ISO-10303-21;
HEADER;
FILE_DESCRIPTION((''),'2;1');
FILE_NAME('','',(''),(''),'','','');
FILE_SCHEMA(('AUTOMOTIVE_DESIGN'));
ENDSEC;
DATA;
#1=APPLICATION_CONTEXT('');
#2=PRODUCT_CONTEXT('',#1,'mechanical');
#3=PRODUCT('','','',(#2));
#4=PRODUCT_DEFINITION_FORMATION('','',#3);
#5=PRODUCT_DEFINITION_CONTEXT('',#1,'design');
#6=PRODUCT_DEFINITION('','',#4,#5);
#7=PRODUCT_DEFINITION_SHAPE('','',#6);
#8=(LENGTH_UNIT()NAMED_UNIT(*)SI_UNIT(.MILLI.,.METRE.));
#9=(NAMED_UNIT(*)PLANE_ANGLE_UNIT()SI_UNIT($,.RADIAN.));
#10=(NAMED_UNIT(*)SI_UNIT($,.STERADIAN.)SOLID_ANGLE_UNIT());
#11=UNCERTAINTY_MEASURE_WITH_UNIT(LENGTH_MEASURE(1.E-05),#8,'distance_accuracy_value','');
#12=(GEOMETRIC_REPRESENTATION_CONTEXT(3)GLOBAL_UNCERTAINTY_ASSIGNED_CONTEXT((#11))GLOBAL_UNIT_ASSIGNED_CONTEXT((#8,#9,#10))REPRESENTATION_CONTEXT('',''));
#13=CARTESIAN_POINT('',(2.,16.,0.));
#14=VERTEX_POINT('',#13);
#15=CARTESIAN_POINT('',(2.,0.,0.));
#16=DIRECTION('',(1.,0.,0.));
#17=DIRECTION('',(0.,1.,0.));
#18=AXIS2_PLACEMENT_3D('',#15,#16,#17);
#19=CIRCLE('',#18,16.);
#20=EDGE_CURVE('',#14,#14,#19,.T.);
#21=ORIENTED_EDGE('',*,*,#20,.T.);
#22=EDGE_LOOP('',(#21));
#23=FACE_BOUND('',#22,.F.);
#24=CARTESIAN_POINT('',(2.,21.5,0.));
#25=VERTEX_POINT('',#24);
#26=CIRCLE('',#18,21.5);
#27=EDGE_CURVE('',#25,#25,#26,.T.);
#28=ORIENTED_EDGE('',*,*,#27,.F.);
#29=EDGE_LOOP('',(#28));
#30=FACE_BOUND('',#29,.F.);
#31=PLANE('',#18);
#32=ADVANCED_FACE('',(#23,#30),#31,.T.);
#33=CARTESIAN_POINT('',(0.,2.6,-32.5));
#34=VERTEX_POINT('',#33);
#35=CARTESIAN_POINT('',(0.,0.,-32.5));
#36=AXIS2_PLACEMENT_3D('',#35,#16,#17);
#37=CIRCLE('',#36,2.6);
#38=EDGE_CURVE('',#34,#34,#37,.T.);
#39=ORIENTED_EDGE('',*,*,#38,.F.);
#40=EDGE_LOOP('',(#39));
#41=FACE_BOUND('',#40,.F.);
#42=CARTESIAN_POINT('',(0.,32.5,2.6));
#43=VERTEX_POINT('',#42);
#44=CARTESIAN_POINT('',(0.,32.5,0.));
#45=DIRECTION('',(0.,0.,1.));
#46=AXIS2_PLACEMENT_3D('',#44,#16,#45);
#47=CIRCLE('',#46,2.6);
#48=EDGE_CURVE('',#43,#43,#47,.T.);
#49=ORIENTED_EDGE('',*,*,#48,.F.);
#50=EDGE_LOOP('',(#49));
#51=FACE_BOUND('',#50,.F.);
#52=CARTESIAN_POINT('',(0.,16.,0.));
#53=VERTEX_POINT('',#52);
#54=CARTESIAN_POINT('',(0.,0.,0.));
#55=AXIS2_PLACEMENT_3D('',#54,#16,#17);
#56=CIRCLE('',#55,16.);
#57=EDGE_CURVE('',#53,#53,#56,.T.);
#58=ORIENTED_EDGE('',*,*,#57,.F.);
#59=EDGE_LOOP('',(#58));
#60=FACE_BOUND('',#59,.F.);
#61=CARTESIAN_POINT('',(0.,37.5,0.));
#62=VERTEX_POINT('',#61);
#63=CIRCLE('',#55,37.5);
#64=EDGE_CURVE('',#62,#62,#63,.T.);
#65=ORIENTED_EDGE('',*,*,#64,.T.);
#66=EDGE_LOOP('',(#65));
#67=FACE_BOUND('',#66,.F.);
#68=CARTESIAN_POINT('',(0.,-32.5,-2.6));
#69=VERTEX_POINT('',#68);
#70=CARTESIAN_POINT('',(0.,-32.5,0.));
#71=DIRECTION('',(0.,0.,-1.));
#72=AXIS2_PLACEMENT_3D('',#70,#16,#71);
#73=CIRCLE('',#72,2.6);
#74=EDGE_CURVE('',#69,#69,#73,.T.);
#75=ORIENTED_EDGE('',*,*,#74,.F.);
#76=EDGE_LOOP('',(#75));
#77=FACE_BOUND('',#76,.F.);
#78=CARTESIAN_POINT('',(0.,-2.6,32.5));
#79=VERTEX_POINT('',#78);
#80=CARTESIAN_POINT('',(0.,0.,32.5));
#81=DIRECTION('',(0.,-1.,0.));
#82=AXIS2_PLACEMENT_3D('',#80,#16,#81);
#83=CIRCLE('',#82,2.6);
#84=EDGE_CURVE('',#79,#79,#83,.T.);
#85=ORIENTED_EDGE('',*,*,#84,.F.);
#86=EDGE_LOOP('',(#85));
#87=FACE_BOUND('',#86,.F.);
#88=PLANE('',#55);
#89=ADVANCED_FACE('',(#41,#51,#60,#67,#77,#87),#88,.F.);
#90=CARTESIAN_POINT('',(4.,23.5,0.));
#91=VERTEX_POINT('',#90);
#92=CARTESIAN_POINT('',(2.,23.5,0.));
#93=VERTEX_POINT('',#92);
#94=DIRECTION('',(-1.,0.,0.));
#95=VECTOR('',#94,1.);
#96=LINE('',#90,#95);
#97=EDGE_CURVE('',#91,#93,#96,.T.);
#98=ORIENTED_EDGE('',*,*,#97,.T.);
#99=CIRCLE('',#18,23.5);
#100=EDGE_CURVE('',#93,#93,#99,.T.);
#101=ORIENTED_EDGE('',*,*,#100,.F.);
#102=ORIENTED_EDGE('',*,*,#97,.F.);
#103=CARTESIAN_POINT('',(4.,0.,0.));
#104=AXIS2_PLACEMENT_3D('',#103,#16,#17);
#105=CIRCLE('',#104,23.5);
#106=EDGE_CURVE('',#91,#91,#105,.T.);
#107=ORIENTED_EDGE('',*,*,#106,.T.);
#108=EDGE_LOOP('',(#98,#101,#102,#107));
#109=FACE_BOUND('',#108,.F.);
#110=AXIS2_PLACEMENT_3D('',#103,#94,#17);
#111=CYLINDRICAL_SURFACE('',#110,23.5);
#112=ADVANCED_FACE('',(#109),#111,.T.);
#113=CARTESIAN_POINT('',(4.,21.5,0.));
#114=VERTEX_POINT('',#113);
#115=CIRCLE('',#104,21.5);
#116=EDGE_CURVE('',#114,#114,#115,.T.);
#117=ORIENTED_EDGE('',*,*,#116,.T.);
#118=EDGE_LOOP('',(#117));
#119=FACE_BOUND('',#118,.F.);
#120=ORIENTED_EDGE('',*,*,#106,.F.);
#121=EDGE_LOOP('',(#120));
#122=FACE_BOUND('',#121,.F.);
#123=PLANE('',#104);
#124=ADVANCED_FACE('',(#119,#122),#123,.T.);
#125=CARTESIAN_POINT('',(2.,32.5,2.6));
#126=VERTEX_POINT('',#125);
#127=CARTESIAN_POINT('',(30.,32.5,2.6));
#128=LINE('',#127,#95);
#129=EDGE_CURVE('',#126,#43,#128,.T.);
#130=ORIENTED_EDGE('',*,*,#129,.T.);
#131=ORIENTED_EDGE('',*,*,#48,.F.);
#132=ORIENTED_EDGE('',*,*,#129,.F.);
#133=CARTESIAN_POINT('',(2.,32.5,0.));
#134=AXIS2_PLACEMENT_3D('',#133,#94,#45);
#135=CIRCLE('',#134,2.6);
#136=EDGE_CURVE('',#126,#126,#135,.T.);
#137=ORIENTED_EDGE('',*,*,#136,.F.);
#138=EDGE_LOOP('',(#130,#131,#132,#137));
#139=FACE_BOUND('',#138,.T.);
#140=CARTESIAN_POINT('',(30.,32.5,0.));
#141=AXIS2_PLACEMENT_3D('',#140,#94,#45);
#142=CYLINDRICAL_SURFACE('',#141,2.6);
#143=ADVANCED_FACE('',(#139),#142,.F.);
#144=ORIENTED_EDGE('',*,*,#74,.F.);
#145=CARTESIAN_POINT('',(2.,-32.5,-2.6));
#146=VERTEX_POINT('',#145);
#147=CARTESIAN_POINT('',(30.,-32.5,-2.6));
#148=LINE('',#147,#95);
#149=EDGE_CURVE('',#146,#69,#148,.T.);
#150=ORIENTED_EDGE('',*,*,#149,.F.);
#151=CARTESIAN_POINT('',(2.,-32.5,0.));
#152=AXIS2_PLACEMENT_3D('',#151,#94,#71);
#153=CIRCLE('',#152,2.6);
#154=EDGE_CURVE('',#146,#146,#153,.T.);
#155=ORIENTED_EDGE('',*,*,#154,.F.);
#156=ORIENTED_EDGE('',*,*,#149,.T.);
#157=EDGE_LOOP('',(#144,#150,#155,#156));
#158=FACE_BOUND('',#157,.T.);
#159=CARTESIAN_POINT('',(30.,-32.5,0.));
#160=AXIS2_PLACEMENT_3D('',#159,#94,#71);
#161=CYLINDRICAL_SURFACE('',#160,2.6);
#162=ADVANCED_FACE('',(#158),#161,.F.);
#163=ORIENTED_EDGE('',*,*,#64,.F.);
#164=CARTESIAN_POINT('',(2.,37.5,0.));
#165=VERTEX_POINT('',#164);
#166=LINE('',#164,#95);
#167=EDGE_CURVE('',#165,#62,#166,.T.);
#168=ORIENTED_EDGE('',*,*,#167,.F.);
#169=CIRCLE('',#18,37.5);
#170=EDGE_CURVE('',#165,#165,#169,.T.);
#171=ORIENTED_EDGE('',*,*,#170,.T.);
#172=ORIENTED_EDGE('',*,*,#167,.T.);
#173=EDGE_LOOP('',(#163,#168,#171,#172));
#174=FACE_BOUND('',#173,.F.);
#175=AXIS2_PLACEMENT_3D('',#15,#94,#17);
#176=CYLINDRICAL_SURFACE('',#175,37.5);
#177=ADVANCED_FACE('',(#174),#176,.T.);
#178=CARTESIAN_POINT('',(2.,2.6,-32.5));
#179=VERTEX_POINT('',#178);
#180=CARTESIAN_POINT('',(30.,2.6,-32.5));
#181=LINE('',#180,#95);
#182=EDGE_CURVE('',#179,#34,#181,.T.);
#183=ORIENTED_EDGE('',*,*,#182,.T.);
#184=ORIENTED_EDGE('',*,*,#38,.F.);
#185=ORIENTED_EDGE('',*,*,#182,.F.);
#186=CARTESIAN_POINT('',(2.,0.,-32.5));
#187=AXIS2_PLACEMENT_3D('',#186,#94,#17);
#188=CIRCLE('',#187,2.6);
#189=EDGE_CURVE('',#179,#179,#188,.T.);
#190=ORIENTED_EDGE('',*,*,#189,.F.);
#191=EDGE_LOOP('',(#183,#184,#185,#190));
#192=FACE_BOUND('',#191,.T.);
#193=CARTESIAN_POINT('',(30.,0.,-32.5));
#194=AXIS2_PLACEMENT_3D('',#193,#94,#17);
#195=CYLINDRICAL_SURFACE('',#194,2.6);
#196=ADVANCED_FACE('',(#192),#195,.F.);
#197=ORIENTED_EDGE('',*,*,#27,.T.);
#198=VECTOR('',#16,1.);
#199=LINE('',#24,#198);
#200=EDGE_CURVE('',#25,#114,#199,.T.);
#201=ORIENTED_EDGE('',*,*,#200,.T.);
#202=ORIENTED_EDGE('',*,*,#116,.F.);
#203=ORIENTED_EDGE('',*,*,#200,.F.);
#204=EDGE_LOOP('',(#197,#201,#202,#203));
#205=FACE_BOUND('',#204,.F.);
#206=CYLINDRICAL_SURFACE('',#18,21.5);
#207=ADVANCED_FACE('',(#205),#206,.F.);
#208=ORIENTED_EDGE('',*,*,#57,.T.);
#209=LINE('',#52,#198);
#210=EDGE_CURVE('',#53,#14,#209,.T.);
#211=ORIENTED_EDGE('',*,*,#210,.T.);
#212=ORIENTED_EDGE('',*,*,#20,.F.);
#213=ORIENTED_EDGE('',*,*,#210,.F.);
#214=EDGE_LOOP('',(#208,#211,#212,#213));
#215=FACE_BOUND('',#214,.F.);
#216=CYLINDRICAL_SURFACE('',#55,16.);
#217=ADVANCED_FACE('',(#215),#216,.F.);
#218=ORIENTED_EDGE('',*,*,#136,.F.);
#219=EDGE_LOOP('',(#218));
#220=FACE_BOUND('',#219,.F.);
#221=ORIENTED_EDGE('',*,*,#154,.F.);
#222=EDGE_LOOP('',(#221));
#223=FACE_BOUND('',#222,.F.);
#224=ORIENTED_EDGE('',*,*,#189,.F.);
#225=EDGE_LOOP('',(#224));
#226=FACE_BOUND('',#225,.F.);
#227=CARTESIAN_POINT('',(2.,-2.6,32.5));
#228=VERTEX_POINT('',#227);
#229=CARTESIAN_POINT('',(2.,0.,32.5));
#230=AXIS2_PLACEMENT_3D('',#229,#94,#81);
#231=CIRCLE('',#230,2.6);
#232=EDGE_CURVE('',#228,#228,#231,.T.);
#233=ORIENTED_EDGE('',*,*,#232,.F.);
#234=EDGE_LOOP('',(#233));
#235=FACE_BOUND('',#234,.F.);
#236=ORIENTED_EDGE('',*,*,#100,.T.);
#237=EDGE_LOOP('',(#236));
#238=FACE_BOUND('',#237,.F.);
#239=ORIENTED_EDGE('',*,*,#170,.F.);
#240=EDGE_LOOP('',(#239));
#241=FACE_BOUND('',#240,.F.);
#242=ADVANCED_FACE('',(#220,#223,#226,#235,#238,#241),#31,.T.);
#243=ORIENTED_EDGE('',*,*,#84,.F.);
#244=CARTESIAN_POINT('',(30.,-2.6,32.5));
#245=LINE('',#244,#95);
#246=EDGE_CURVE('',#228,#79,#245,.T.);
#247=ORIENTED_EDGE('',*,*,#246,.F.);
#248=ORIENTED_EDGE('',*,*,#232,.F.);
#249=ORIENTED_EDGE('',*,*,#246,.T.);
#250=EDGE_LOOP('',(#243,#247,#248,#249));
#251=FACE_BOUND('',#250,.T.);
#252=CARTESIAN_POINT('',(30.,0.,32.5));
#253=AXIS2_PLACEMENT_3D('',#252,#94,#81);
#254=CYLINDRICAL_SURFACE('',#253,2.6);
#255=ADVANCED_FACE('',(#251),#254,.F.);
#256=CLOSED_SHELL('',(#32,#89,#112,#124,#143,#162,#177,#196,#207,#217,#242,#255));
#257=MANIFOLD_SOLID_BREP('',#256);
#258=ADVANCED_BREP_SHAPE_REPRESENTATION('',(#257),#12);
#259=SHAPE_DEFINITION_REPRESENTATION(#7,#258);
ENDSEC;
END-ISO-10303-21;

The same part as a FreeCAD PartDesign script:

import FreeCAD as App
import Part
import Sketcher
Q = App.Units.Quantity

doc = App.newDocument("Part")
body = doc.addObject("PartDesign::Body", "Body")

# Sketch on XY plane
sketch1 = body.newObject("Sketcher::SketchObject", "Sketch")
sketch1.AttachmentSupport = (doc.getObject("XY_Plane"), [""])
sketch1.MapMode = "FlatFace"
sketch1.addGeometry([
    Part.LineSegment(App.Vector(0, 37.5, 0), App.Vector(0, 16, 0)),  # 0
    Part.LineSegment(App.Vector(0, 16, 0), App.Vector(2, 16, 0)),  # 1
    Part.LineSegment(App.Vector(2, 16, 0), App.Vector(2, 21.5, 0)),  # 2
    Part.LineSegment(App.Vector(2, 21.5, 0), App.Vector(4, 21.5, 0)),  # 3
    Part.LineSegment(App.Vector(4, 21.5, 0), App.Vector(4, 23.5, 0)),  # 4
    Part.LineSegment(App.Vector(4, 23.5, 0), App.Vector(2, 23.5, 0)),  # 5
    Part.LineSegment(App.Vector(2, 23.5, 0), App.Vector(2, 37.5, 0)),  # 6
    Part.LineSegment(App.Vector(2, 37.5, 0), App.Vector(0, 37.5, 0)),  # 7
], False)
sketch1.addConstraint([
    Sketcher.Constraint("Coincident", 0, 2, 1, 1),
    Sketcher.Constraint("Coincident", 1, 2, 2, 1),
    Sketcher.Constraint("Coincident", 2, 2, 3, 1),
    Sketcher.Constraint("Coincident", 3, 2, 4, 1),
    Sketcher.Constraint("Coincident", 4, 2, 5, 1),
    Sketcher.Constraint("Coincident", 5, 2, 6, 1),
    Sketcher.Constraint("Coincident", 6, 2, 7, 1),
    Sketcher.Constraint("Coincident", 7, 2, 0, 1),
    Sketcher.Constraint("Vertical", 0),
    Sketcher.Constraint("Horizontal", 1),
    Sketcher.Constraint("Vertical", 2),
    Sketcher.Constraint("Horizontal", 3),
    Sketcher.Constraint("Vertical", 4),
    Sketcher.Constraint("Horizontal", 5),
    Sketcher.Constraint("Vertical", 6),
    Sketcher.Constraint("Horizontal", 7),
    Sketcher.Constraint("PointOnObject", 0, 2, -2),
    Sketcher.Constraint("Vertical", 2, 2, 5, 2),
    Sketcher.Constraint("Equal", 1, 3),
    Sketcher.Constraint("Equal", 7, 4),
    Sketcher.Constraint("DistanceX", 1, 1, 1, 2, Q("2 mm")),
    Sketcher.Constraint("DistanceY", 6, 1, 6, 2, Q("14 mm")),
    Sketcher.Constraint("DistanceY", 0, 2, 0, 1, Q("21.5 mm")),
    Sketcher.Constraint("DistanceY", -1, 1, 0, 2, Q("16 mm")),
])
revolution = body.newObject("PartDesign::Revolution", "Revolution")
revolution.Profile = sketch1
revolution.ReferenceAxis = (sketch1, ["H_Axis"])
revolution.Angle = 360

# Sketch on XZ plane
sketch2 = body.newObject("Sketcher::SketchObject", "Sketch001")
sketch2.AttachmentSupport = (doc.getObject("XZ_Plane"), [""])
sketch2.MapMode = "FlatFace"
sketch2.AttachmentOffset = App.Placement(App.Vector(0, 0, -32.5), App.Rotation())
sketch2.addGeometry([
    Part.LineSegment(App.Vector(31.562238, 0, 0), App.Vector(0, 0, 0)),
    Part.LineSegment(App.Vector(0, 0, 0), App.Vector(0, 2.6, 0)),
    Part.LineSegment(App.Vector(0, 2.6, 0), App.Vector(30, 2.6, 0)),
    Part.LineSegment(App.Vector(30, 2.6, 0), App.Vector(31.562238, 0, 0)),
], False)
sketch2.addConstraint([
    Sketcher.Constraint("Coincident", 0, 2, 1, 1),
    Sketcher.Constraint("Coincident", 1, 2, 2, 1),
    Sketcher.Constraint("Coincident", 2, 2, 3, 1),
    Sketcher.Constraint("Coincident", 3, 2, 0, 1),
    Sketcher.Constraint("Horizontal", 0),
    Sketcher.Constraint("Vertical", 1),
    Sketcher.Constraint("Horizontal", 2),
    Sketcher.Constraint("Coincident", 0, 2, -1, 1),
    Sketcher.Constraint("DistanceX", 2, 1, 2, 2, Q("30 mm")),
    Sketcher.Constraint("Angle", 3, Q("-59 deg")),
    Sketcher.Constraint("DistanceY", 1, 1, 1, 2, Q("2.6 mm")),
])
groove = body.newObject("PartDesign::Groove", "Groove")
groove.Profile = sketch2
groove.ReferenceAxis = (sketch2, ["H_Axis"])
groove.Angle = 360
doc.recompute()

polarpattern = body.newObject("PartDesign::PolarPattern", "PolarPattern")
polarpattern.Originals = [groove]
polarpattern.Axis = (doc.getObject("X_Axis"), [""])
polarpattern.Angle = 360
polarpattern.Occurrences = 4
body.Tip = polarpattern

doc.recompute()
